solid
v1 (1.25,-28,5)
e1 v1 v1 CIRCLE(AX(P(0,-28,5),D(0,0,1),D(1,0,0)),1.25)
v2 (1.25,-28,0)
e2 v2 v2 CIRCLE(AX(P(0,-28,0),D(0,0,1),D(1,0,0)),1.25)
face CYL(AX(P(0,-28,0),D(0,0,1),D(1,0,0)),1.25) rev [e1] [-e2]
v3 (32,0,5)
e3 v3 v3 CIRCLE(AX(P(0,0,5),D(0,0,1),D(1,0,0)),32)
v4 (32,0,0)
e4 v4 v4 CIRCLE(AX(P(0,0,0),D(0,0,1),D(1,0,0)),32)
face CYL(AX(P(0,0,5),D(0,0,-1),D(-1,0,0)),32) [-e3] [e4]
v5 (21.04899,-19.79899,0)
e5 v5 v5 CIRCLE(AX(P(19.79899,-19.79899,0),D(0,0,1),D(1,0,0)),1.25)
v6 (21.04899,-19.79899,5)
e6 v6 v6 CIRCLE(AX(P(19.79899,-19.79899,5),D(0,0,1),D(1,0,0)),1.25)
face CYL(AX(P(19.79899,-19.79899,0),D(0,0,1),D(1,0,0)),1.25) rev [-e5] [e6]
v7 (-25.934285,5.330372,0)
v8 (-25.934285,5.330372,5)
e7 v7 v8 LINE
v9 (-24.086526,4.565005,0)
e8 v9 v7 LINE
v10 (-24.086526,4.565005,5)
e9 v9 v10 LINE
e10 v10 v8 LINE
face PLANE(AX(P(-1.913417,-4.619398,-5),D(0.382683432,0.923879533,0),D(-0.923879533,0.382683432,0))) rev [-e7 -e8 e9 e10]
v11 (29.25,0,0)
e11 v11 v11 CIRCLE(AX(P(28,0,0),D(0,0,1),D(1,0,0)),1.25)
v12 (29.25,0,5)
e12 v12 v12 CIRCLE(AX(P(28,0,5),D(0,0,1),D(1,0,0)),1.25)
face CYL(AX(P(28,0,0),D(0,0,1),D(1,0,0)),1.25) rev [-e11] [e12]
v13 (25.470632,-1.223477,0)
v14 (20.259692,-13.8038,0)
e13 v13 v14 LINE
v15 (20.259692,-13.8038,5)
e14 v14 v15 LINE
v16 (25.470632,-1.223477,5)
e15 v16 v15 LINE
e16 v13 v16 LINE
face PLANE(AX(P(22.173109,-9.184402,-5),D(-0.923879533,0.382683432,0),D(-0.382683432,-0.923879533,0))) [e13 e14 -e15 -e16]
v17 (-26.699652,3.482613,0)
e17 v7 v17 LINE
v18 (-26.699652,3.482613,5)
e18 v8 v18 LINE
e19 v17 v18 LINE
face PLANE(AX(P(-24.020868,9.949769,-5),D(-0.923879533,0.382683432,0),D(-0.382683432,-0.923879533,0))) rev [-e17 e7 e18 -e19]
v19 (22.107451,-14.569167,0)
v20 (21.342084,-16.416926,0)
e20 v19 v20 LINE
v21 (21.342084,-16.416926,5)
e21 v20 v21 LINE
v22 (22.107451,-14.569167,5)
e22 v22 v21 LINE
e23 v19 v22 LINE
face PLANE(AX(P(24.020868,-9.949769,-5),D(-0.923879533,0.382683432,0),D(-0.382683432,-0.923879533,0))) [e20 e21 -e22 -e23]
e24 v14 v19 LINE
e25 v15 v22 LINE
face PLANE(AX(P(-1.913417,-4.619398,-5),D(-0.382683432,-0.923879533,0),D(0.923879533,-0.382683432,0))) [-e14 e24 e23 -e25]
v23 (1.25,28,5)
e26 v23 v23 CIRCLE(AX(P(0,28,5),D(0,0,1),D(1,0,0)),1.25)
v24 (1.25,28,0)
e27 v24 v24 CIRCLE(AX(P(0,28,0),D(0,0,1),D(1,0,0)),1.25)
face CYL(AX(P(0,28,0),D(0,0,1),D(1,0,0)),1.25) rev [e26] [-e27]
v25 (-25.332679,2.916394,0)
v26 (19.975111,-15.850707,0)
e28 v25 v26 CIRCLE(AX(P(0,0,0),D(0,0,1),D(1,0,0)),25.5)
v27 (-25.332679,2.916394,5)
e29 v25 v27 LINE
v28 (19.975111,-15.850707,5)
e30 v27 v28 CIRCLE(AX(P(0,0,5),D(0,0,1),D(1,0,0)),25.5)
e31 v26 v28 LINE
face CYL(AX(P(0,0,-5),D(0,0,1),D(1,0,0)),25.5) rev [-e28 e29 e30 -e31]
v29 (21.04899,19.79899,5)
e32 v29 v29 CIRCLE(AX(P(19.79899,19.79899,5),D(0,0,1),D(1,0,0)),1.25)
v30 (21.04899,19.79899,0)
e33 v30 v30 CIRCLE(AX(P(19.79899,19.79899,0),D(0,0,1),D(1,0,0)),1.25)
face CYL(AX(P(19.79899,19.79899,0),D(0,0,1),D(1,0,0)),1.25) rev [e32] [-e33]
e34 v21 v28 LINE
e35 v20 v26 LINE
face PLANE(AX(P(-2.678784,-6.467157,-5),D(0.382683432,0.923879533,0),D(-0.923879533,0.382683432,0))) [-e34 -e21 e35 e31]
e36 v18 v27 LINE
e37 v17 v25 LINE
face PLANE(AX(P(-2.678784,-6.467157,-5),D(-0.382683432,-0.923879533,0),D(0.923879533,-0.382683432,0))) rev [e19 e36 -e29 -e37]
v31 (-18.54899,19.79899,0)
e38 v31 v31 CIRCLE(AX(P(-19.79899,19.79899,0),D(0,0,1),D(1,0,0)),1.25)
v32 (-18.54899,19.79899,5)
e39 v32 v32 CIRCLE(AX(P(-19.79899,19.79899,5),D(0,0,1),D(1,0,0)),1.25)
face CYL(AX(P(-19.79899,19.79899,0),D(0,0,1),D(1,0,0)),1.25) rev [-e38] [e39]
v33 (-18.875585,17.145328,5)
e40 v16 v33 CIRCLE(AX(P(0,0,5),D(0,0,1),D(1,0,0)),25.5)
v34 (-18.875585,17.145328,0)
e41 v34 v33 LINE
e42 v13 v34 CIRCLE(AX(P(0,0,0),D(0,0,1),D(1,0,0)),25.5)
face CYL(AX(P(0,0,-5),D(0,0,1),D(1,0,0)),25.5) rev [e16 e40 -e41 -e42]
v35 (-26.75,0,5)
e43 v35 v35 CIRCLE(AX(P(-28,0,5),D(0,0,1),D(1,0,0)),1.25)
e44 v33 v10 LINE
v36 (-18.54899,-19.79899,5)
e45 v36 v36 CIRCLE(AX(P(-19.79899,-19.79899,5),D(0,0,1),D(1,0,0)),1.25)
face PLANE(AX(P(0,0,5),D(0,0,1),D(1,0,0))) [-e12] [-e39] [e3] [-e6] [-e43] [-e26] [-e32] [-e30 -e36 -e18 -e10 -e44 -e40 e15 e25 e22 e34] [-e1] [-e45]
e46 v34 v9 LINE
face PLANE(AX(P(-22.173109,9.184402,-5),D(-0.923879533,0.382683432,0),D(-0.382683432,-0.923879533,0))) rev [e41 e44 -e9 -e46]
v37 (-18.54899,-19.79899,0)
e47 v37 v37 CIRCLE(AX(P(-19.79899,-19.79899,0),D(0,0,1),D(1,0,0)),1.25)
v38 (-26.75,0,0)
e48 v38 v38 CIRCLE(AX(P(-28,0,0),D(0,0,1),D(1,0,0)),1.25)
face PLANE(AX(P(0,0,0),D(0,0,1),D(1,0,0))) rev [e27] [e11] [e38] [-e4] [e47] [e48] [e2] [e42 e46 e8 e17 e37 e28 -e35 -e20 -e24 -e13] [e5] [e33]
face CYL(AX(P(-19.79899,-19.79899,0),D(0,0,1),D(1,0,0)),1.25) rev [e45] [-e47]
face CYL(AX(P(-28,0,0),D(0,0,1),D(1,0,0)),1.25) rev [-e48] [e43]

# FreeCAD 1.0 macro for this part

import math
import FreeCAD as App
import Part
import Sketcher
Q = App.Units.Quantity

doc = App.newDocument("Part")
body = doc.addObject("PartDesign::Body", "Body")

sketch1 = body.newObject("Sketcher::SketchObject", "Sketch")
sketch1.AttachmentSupport = (doc.getObject("XY_Plane"), [""])
sketch1.MapMode = "FlatFace"
sketch1.addGeometry(Part.Circle(App.Vector(0, 0, 0), App.Vector(0, 0, 1), 32), False)
sketch1.addConstraint(Sketcher.Constraint("Coincident", 0, 3, -1, 1))
sketch1.addConstraint(Sketcher.Constraint("Diameter", 0, Q("64 mm")))
pad1 = body.newObject("PartDesign::Pad", "Pad")
pad1.Profile = sketch1
pad1.Length = 5

sketch2 = body.newObject("Sketcher::SketchObject", "Sketch001")
sketch2.AttachmentSupport = (doc.getObject("XY_Plane"), [""])
sketch2.MapMode = "FlatFace"
sketch2.AttachmentOffset = App.Placement(App.Vector(0, 0, 5), App.Rotation())
sketch2.addGeometry(Part.Circle(App.Vector(0, 28, 0), App.Vector(0, 0, 1), 1.2), False)
sketch2.addGeometry(Part.Circle(App.Vector(19.8, 19.8, 0), App.Vector(0, 0, 1), 1.2), False)
sketch2.addGeometry(Part.Circle(App.Vector(28, 0, 0), App.Vector(0, 0, 1), 1.2), False)
sketch2.addGeometry(Part.Circle(App.Vector(19.8, -19.8, 0), App.Vector(0, 0, 1), 1.2), False)
sketch2.addGeometry(Part.Circle(App.Vector(0, -28, 0), App.Vector(0, 0, 1), 1.2), False)
sketch2.addGeometry(Part.Circle(App.Vector(-19.8, -19.8, 0), App.Vector(0, 0, 1), 1.2), False)
sketch2.addGeometry(Part.Circle(App.Vector(-28, 0, 0), App.Vector(0, 0, 1), 1.2), False)
sketch2.addGeometry(Part.Circle(App.Vector(-19.8, 19.8, 0), App.Vector(0, 0, 1), 1.2), False)
sketch2.addConstraint(Sketcher.Constraint("Equal", 0, 1))
sketch2.addConstraint(Sketcher.Constraint("Equal", 1, 2))
sketch2.addConstraint(Sketcher.Constraint("Equal", 2, 3))
sketch2.addConstraint(Sketcher.Constraint("Equal", 3, 4))
sketch2.addConstraint(Sketcher.Constraint("Equal", 4, 5))
sketch2.addConstraint(Sketcher.Constraint("Equal", 5, 6))
sketch2.addConstraint(Sketcher.Constraint("Equal", 6, 7))
sketch2.addConstraint(Sketcher.Constraint("Symmetric", 0, 3, 4, 3, -1, 1))
sketch2.addConstraint(Sketcher.Constraint("Symmetric", 1, 3, 5, 3, -1, 1))
sketch2.addConstraint(Sketcher.Constraint("Symmetric", 2, 3, 6, 3, -1, 1))
sketch2.addConstraint(Sketcher.Constraint("Symmetric", 3, 3, 7, 3, -1, 1))
sketch2.addConstraint(Sketcher.Constraint("Symmetric", 3, 3, 5, 3, -2))
sketch2.addConstraint(Sketcher.Constraint("PointOnObject", 0, 3, -2))
sketch2.addConstraint(Sketcher.Constraint("PointOnObject", 2, 3, -1))
sketch2.addConstraint(Sketcher.Constraint("Diameter", 0, Q("2.5 mm")))
sketch2.addConstraint(Sketcher.Constraint("DistanceY", -1, 1, 0, 3, Q("28 mm")))
sketch2.addConstraint(Sketcher.Constraint("DistanceX", -1, 1, 2, 3, Q("28 mm")))
sketch2.addConstraint(Sketcher.Constraint("DistanceX", -1, 1, 1, 3, Q("19.79899 mm")))
sketch2.addConstraint(Sketcher.Constraint("DistanceY", -1, 1, 1, 3, Q("19.79899 mm")))
pocket1 = body.newObject("PartDesign::Pocket", "Pocket")
pocket1.Profile = sketch2
pocket1.Type = "ThroughAll"

sketch3 = body.newObject("Sketcher::SketchObject", "Sketch002")
sketch3.AttachmentSupport = (doc.getObject("XY_Plane"), [""])
sketch3.MapMode = "FlatFace"
sketch3.AttachmentOffset = App.Placement(App.Vector(0, 0, 5), App.Rotation())
sketch3.addGeometry(Part.LineSegment(App.Vector(-18.9, 17.1, 0), App.Vector(-24.1, 4.6, 0)), False)
sketch3.addGeometry(Part.LineSegment(App.Vector(-24.1, 4.6, 0), App.Vector(-25.9, 5.3, 0)), False)
sketch3.addGeometry(Part.LineSegment(App.Vector(-25.9, 5.3, 0), App.Vector(-26.7, 3.5, 0)), False)
sketch3.addGeometry(Part.LineSegment(App.Vector(-26.7, 3.5, 0), App.Vector(-25.3, 2.9, 0)), False)
sketch3.addGeometry(Part.ArcOfCircle(Part.Circle(App.Vector(0, 0, 0), App.Vector(0, 0, 1), 25.5), math.radians(173), math.radians(322)), False)
sketch3.addGeometry(Part.LineSegment(App.Vector(20, -15.9, 0), App.Vector(21.3, -16.4, 0)), False)
sketch3.addGeometry(Part.LineSegment(App.Vector(21.3, -16.4, 0), App.Vector(22.1, -14.6, 0)), False)
sketch3.addGeometry(Part.LineSegment(App.Vector(22.1, -14.6, 0), App.Vector(20.3, -13.8, 0)), False)
sketch3.addGeometry(Part.LineSegment(App.Vector(20.3, -13.8, 0), App.Vector(25.5, -1.2, 0)), False)
sketch3.addGeometry(Part.ArcOfCircle(Part.Circle(App.Vector(0, 0, 0), App.Vector(0, 0, 1), 25.5), math.radians(-3), math.radians(138)), False)
sketch3.addConstraint(Sketcher.Constraint("Coincident", 0, 2, 1, 1))
sketch3.addConstraint(Sketcher.Constraint("Coincident", 1, 2, 2, 1))
sketch3.addConstraint(Sketcher.Constraint("Coincident", 2, 2, 3, 1))
sketch3.addConstraint(Sketcher.Constraint("Coincident", 3, 2, 4, 1))
sketch3.addConstraint(Sketcher.Constraint("Coincident", 4, 2, 5, 1))
sketch3.addConstraint(Sketcher.Constraint("Coincident", 5, 2, 6, 1))
sketch3.addConstraint(Sketcher.Constraint("Coincident", 6, 2, 7, 1))
sketch3.addConstraint(Sketcher.Constraint("Coincident", 7, 2, 8, 1))
sketch3.addConstraint(Sketcher.Constraint("Coincident", 8, 2, 9, 1))
sketch3.addConstraint(Sketcher.Constraint("Coincident", 9, 2, 0, 1))
sketch3.addConstraint(Sketcher.Constraint("Coincident", 4, 3, -1, 1))
sketch3.addConstraint(Sketcher.Constraint("Coincident", 9, 3, -1, 1))
sketch3.addConstraint(Sketcher.Constraint("Equal", 4, 9))
sketch3.addConstraint(Sketcher.Constraint("Perpendicular", 0, 1))
sketch3.addConstraint(Sketcher.Constraint("Perpendicular", 1, 2))
sketch3.addConstraint(Sketcher.Constraint("Perpendicular", 2, 3))
sketch3.addConstraint(Sketcher.Constraint("Parallel", 3, 5))
sketch3.addConstraint(Sketcher.Constraint("Perpendicular", 5, 6))
sketch3.addConstraint(Sketcher.Constraint("Perpendicular", 6, 7))
sketch3.addConstraint(Sketcher.Constraint("Perpendicular", 7, 8))
sketch3.addConstraint(Sketcher.Constraint("Equal", 1, 2))
sketch3.addConstraint(Sketcher.Constraint("Equal", 3, 5))
sketch3.addConstraint(Sketcher.Constraint("Equal", 2, 6))
sketch3.addConstraint(Sketcher.Constraint("Equal", 6, 7))
sketch3.addConstraint(Sketcher.Constraint("Equal", 0, 8))
sketch3.addConstraint(Sketcher.Constraint("Radius", 4, Q("25.5 mm")))
sketch3.addConstraint(Sketcher.Constraint("Distance", 1, Q("2 mm")))
sketch3.addConstraint(Sketcher.Constraint("Angle", 0, Q("-112.5 deg")))
sketch3.addConstraint(Sketcher.Constraint("Distance", 3, Q("1.4796 mm")))
sketch3.addConstraint(Sketcher.Constraint("DistanceY", 7, 2, -1, 1, Q("13.8038 mm")))
pocket2 = body.newObject("PartDesign::Pocket", "Pocket001")
pocket2.Profile = sketch3
pocket2.Length = 10

doc.recompute()
